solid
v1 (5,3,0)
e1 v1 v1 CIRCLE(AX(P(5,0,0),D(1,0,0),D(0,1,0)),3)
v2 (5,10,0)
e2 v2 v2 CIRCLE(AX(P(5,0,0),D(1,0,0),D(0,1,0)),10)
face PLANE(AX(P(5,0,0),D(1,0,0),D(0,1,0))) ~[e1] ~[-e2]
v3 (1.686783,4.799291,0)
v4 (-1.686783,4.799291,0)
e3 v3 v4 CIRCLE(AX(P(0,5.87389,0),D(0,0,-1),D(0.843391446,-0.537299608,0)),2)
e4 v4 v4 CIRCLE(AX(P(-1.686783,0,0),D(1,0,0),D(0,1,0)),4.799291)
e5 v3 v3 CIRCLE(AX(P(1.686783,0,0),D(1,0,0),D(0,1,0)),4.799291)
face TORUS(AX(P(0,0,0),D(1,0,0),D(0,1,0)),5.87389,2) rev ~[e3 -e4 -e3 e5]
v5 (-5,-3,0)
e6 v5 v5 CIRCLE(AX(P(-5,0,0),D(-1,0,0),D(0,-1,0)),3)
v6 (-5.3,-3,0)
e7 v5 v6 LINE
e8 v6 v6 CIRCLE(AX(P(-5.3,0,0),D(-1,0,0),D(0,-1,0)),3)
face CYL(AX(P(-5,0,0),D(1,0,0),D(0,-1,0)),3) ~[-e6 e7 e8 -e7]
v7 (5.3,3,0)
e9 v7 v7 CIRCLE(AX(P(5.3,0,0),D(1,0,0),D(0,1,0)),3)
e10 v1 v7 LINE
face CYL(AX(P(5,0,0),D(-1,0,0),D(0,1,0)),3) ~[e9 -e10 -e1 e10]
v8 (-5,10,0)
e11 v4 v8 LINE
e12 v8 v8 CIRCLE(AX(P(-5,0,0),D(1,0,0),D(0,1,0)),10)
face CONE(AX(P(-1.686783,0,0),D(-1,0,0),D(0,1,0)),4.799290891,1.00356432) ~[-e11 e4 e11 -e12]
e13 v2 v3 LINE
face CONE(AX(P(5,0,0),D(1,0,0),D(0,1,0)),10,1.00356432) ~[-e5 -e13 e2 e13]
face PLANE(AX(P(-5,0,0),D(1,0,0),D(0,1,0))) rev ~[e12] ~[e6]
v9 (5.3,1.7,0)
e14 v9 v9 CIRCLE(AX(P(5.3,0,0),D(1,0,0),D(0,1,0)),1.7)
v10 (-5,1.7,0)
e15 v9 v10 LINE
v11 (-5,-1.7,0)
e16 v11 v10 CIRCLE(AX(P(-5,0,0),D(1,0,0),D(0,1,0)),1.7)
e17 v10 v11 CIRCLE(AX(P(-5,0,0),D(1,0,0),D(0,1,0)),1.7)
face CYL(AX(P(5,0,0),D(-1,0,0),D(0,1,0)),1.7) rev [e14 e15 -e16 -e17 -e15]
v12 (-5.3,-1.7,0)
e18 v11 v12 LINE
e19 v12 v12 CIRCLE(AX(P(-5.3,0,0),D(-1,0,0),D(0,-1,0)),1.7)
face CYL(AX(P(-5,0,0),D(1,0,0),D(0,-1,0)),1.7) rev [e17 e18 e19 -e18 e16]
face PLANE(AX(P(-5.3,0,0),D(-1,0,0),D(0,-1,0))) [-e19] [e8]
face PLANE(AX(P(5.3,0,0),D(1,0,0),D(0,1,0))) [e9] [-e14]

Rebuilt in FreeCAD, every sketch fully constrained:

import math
import FreeCAD as App
import Part
import Sketcher

V = App.Vector
Q = App.Units.Quantity

doc = App.newDocument("Part")
body = doc.addObject("PartDesign::Body", "Body")

sketch1 = body.newObject("Sketcher::SketchObject", "Sketch")
sketch1.AttachmentSupport = (doc.getObject("XZ_Plane"), [""])
sketch1.MapMode = "FlatFace"
sketch1.addGeometry([
    Part.LineSegment(V(-5, 10, 0), V(-5, 1.7, 0)),
    Part.LineSegment(V(-5, 1.7, 0), V(5, 1.7, 0)),
    Part.LineSegment(V(5, 1.7, 0), V(5, 10, 0)),
    Part.LineSegment(V(5, 10, 0), V(1.7, 4.8, 0)),
    Part.ArcOfCircle(Part.Circle(V(0, 5.9, 0), V(0, 0, 1), 2), math.radians(-147), math.radians(-33)),
    Part.LineSegment(V(-1.7, 4.8, 0), V(-5, 10, 0)),
], False)
sketch1.addConstraint([
    Sketcher.Constraint("Coincident", 0, 2, 1, 1),
    Sketcher.Constraint("Coincident", 1, 2, 2, 1),
    Sketcher.Constraint("Coincident", 2, 2, 3, 1),
    Sketcher.Constraint("Tangent", 3, 2, 4, 2),
    Sketcher.Constraint("Tangent", 4, 1, 5, 1),
    Sketcher.Constraint("Coincident", 5, 2, 0, 1),
    Sketcher.Constraint("Vertical", 0),
    Sketcher.Constraint("Horizontal", 1),
    Sketcher.Constraint("Vertical", 2),
    Sketcher.Constraint("Symmetric", 3, 2, 4, 1, -2),
    Sketcher.Constraint("Horizontal", 2, 2, 5, 2),
    Sketcher.Constraint("Radius", 4, Q("2 mm")),
    Sketcher.Constraint("DistanceX", 1, 1, 1, 2, Q("10 mm")),
    Sketcher.Constraint("DistanceY", 0, 2, 0, 1, Q("8.3 mm")),
    Sketcher.Constraint("DistanceY", -1, 1, 2, 2, Q("10 mm")),
    Sketcher.Constraint("Angle", 3, Q("-122.5 deg")),
])
revolution = body.newObject("PartDesign::Revolution", "Revolution")
revolution.Profile = sketch1
revolution.ReferenceAxis = (sketch1, ["H_Axis"])
revolution.Angle = 360
body2 = doc.addObject("PartDesign::Body", "Body001")
doc.recompute()

body.Placement = App.Placement(V(0, 0, 0), App.Rotation(V(-1, 0, 0), 90))
boolean = body2.newObject("PartDesign::Boolean", "Boolean")
boolean.Type = "Fuse"
boolean.addObjects([body])

sketch2 = body2.newObject("Sketcher::SketchObject", "Sketch001")
sketch2.AttachmentSupport = (doc.getObject("YZ_Plane001"), [""])
sketch2.MapMode = "FlatFace"
sketch2.AttachmentOffset = App.Placement(V(0, 0, 5), App.Rotation())
sketch2.addGeometry([
    Part.Circle(V(0, 0, 0), V(0, 0, 1), 3),
    Part.Circle(V(0, 0, 0), V(0, 0, 1), 1.7),
], False)
sketch2.addConstraint([
    Sketcher.Constraint("Coincident", 0, 3, -1, 1),
    Sketcher.Constraint("Coincident", 1, 3, -1, 1),
    Sketcher.Constraint("Diameter", 0, Q("6 mm")),
    Sketcher.Constraint("Diameter", 1, Q("3.4 mm")),
])
pad1 = body2.newObject("PartDesign::Pad", "Pad")
pad1.Profile = sketch2
pad1.Length = 0.3

sketch3 = body2.newObject("Sketcher::SketchObject", "Sketch002")
sketch3.AttachmentSupport = (doc.getObject("YZ_Plane001"), [""])
sketch3.MapMode = "FlatFace"
sketch3.AttachmentOffset = App.Placement(V(0, 0, -5), App.Rotation())
sketch3.addGeometry([
    Part.Circle(V(0, 0, 0), V(0, 0, 1), 3),
    Part.Circle(V(0, 0, 0), V(0, 0, 1), 1.7),
], False)
sketch3.addConstraint([
    Sketcher.Constraint("Coincident", 0, 3, -1, 1),
    Sketcher.Constraint("Coincident", 1, 3, -1, 1),
    Sketcher.Constraint("Diameter", 0, Q("6 mm")),
    Sketcher.Constraint("Diameter", 1, Q("3.4 mm")),
])
pad2 = body2.newObject("PartDesign::Pad", "Pad001")
pad2.Profile = sketch3
pad2.Length = 0.3
pad2.Reversed = True

doc.recompute()
